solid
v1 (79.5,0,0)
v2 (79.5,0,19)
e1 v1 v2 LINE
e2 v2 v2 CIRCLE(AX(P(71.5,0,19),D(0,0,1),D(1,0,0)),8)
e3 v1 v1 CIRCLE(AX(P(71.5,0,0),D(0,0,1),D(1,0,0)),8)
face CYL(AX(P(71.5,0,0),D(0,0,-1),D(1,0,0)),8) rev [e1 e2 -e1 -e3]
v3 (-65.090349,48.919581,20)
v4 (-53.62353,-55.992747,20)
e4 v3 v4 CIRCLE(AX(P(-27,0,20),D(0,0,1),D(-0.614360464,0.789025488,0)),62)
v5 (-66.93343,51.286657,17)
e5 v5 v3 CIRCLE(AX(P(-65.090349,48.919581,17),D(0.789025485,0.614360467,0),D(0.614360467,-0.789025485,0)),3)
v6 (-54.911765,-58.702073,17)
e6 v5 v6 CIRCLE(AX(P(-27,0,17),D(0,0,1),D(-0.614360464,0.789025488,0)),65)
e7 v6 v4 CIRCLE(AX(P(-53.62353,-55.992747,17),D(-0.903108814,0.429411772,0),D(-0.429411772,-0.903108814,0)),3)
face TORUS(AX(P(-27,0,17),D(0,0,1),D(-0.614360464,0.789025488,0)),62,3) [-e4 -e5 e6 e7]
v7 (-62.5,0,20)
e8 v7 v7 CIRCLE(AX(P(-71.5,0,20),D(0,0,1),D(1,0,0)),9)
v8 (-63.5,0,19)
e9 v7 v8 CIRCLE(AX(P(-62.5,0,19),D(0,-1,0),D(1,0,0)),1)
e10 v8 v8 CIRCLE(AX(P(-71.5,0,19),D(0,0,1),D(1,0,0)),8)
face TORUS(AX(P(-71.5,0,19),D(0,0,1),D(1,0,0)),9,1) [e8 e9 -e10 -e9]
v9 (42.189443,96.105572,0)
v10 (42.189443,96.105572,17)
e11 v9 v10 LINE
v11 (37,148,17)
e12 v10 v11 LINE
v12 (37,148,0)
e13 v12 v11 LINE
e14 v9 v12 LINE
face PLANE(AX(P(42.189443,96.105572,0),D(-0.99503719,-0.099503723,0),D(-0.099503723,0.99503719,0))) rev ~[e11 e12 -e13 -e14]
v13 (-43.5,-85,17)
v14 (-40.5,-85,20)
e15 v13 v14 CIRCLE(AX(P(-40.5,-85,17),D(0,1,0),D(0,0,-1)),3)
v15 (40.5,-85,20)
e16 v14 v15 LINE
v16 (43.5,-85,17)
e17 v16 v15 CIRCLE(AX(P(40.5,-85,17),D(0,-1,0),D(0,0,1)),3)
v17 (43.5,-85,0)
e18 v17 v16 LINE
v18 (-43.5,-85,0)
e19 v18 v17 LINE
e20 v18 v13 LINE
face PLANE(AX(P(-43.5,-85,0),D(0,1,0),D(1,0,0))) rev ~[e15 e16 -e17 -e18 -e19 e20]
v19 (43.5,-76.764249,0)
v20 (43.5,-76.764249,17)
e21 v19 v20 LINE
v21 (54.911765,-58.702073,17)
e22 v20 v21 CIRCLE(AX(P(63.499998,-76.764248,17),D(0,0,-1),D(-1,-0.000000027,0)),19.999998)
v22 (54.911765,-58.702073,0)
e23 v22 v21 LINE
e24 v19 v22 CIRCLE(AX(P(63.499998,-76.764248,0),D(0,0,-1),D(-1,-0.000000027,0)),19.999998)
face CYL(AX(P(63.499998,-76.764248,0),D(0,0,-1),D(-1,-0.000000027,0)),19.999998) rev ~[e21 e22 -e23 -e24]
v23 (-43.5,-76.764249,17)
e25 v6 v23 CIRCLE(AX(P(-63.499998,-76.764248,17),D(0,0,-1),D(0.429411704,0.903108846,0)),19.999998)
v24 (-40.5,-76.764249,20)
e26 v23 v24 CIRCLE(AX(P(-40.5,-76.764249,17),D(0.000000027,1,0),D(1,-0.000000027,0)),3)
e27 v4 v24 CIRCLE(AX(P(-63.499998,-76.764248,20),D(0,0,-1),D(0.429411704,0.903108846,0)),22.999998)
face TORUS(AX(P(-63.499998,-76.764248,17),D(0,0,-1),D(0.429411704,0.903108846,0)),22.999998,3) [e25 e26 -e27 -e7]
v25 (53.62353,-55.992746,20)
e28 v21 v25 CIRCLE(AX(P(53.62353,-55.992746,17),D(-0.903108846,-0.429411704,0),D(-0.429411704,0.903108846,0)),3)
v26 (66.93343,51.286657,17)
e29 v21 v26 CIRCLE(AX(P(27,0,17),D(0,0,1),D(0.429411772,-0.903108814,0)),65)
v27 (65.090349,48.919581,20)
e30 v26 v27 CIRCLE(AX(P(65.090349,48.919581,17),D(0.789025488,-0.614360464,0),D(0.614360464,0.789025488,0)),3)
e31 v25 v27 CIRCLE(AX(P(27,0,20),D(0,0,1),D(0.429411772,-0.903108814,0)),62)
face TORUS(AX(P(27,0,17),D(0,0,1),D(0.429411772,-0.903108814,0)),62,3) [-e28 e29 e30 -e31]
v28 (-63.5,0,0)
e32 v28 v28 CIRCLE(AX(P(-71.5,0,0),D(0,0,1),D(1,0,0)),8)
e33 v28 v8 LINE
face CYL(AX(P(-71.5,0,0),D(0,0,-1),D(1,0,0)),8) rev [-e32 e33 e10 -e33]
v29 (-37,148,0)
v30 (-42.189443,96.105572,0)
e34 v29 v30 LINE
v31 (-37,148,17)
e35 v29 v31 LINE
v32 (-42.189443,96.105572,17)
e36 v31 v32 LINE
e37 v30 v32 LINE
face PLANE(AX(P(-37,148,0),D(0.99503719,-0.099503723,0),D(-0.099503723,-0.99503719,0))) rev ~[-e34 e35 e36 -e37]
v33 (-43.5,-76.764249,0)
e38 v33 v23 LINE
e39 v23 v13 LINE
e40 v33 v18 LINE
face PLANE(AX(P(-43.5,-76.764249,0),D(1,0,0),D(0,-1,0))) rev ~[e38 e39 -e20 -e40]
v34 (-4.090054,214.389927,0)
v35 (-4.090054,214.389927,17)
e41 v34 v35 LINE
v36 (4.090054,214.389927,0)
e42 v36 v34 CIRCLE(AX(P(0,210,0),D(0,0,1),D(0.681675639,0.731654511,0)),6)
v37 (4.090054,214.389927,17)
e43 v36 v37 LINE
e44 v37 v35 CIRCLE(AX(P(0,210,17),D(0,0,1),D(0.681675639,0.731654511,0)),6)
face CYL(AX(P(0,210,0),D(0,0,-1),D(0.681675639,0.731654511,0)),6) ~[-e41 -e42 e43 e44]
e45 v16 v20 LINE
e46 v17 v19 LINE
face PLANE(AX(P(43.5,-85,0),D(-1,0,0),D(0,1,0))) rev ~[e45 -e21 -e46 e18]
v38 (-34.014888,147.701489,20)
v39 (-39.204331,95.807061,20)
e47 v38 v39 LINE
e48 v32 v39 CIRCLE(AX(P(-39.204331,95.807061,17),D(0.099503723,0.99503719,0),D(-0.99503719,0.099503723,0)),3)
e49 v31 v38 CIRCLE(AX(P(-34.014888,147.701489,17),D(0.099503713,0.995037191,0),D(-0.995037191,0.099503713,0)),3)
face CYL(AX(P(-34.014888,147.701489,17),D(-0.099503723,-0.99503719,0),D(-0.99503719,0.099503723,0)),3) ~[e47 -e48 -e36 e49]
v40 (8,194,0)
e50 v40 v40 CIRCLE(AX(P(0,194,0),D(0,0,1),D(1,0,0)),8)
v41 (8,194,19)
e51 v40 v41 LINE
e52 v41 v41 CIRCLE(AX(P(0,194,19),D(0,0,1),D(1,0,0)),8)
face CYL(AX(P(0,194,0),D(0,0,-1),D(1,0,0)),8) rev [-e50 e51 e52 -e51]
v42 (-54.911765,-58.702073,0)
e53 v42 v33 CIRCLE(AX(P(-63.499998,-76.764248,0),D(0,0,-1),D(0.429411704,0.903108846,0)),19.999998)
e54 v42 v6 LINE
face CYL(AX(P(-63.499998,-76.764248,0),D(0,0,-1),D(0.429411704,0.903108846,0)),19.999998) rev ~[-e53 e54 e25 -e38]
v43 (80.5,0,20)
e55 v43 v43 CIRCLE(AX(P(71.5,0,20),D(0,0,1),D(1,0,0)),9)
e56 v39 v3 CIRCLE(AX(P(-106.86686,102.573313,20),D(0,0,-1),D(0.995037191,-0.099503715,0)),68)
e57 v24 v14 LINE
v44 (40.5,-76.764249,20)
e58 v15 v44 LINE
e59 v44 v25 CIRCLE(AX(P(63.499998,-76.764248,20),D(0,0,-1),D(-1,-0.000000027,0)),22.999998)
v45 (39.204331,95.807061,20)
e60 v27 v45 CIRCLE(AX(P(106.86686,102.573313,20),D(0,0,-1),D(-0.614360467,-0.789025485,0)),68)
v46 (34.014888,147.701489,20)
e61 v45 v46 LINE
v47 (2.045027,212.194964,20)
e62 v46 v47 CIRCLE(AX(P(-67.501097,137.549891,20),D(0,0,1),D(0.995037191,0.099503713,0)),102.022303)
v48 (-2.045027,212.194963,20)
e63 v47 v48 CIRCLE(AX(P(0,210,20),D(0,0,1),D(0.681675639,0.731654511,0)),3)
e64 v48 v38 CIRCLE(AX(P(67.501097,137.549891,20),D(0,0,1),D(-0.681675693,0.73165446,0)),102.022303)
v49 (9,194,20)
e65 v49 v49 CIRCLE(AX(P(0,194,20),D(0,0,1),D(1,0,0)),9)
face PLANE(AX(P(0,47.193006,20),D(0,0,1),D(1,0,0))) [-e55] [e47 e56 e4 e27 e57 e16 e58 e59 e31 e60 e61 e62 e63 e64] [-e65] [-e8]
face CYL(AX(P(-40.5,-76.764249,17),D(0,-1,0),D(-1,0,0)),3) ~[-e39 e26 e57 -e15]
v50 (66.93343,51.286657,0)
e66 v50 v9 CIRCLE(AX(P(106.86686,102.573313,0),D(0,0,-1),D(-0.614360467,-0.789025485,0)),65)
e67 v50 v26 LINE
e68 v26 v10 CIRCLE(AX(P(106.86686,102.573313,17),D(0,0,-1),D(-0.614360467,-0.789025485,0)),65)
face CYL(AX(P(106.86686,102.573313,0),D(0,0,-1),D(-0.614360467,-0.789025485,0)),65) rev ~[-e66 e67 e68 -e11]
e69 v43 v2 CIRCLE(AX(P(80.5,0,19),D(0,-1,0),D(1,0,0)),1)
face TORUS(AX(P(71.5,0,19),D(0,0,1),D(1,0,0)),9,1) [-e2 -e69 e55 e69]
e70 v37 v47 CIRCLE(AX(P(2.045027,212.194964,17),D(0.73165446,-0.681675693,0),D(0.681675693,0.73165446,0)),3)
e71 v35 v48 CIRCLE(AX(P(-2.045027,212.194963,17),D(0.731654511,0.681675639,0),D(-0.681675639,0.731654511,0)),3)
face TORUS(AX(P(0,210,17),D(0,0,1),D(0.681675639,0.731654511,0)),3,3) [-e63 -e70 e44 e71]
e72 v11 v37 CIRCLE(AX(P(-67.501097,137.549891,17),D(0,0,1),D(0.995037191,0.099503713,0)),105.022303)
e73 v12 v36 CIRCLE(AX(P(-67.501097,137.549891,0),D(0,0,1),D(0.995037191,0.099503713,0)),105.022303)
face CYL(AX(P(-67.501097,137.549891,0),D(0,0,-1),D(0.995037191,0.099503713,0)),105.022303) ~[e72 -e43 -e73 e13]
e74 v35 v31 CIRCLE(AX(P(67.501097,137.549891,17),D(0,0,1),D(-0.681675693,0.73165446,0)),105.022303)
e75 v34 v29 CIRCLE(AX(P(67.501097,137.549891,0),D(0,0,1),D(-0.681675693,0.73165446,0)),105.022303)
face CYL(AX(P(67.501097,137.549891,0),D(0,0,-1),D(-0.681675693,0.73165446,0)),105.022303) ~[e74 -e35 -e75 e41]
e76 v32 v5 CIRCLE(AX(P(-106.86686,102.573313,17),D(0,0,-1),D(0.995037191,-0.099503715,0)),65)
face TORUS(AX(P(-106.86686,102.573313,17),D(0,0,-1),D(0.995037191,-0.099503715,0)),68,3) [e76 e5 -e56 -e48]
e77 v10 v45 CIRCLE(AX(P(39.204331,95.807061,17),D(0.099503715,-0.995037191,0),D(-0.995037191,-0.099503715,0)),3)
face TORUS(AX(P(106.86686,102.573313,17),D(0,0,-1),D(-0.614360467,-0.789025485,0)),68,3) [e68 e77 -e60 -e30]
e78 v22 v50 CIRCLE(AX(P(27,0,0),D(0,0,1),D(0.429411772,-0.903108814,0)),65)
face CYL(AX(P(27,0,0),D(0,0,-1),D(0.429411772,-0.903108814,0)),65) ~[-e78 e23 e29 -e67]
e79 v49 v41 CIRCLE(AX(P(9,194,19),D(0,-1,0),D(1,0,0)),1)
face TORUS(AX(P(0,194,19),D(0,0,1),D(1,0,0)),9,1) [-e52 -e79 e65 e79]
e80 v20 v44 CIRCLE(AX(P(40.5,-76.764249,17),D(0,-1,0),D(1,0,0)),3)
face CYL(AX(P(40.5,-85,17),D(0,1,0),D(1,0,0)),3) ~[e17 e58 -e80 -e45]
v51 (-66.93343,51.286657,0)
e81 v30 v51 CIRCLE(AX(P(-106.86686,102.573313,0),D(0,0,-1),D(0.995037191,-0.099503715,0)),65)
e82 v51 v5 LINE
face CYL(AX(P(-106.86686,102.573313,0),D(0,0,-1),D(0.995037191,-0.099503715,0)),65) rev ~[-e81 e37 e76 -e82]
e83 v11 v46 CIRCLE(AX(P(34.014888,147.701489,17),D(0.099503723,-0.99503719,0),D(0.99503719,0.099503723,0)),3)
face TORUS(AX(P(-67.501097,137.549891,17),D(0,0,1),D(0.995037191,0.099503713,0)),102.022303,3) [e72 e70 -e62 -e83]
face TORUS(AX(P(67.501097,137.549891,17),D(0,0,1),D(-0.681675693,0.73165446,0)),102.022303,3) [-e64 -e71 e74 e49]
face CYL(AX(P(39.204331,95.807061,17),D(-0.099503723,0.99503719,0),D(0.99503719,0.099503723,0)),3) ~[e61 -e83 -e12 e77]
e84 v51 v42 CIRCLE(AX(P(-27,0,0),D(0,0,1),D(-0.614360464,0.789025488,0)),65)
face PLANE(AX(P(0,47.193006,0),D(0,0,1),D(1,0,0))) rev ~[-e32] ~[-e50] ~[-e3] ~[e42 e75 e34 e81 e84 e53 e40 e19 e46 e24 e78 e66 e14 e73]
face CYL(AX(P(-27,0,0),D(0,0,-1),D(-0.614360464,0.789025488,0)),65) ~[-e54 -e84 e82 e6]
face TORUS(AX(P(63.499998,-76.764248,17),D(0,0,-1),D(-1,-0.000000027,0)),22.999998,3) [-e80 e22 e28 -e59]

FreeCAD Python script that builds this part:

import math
import FreeCAD as App
import Part
import Sketcher

V = App.Vector
Q = App.Units.Quantity


def edges_at(feature, points):
    """Names of the edges that pass closest to the given points."""
    edges = feature.Shape.Edges
    near = lambda p: min(range(len(edges)), key=lambda i: edges[i].distToShape(Part.Vertex(*p))[0])
    return sorted({f"Edge{near(p) + 1}" for p in points})

doc = App.newDocument("Part")
body = doc.addObject("PartDesign::Body", "Body")

sketch1 = body.newObject("Sketcher::SketchObject", "Sketch")
sketch1.AttachmentSupport = (doc.getObject("XY_Plane"), [""])
sketch1.MapMode = "FlatFace"
sketch1.addGeometry(Part.LineSegment(V(-43.5, -85, 0), V(43.5, -85, 0)), False)
sketch1.addGeometry(Part.LineSegment(V(43.5, -85, 0), V(43.5, -76.764249, 0)), False)
sketch1.addGeometry(Part.ArcOfCircle(Part.Circle(V(63.499998, -76.764248, 0), V(0, 0, 1), 19.999998), math.radians(115.430231), math.radians(180.000002)), False)
sketch1.addGeometry(Part.ArcOfCircle(Part.Circle(V(27, 0, 0), V(0, 0, 1), 65), math.radians(-64.569764), math.radians(52.094535)), False)
sketch1.addGeometry(Part.ArcOfCircle(Part.Circle(V(106.86686, 102.573313, 0), V(0, 0, 1), 65), math.radians(-174.289407), math.radians(-127.905465)), False)
sketch1.addGeometry(Part.LineSegment(V(42.189443, 96.105572, 0), V(37, 148, 0)), False)
sketch1.addGeometry(Part.ArcOfCircle(Part.Circle(V(-67.501097, 137.549891, 0), V(0, 0, 1), 105.022303), math.radians(5.710593), math.radians(47.025273)), False)
sketch1.addGeometry(Part.ArcOfCircle(Part.Circle(V(0, 210, 0), V(0, 0, 1), 6), math.radians(47.025277), math.radians(132.974723)), False)
sketch1.addGeometry(Part.ArcOfCircle(Part.Circle(V(67.501097, 137.549891, 0), V(0, 0, 1), 105.022303), math.radians(132.974727), math.radians(174.289407)), False)
sketch1.addGeometry(Part.LineSegment(V(-37, 148, 0), V(-42.189443, 96.105572, 0)), False)
sketch1.addGeometry(Part.ArcOfCircle(Part.Circle(V(-106.86686, 102.573313, 0), V(0, 0, 1), 65), math.radians(-52.094535), math.radians(-5.710593)), False)
sketch1.addGeometry(Part.ArcOfCircle(Part.Circle(V(-27, 0, 0), V(0, 0, 1), 65), math.radians(127.905465), math.radians(244.569764)), False)
sketch1.addGeometry(Part.ArcOfCircle(Part.Circle(V(-63.499998, -76.764248, 0), V(0, 0, 1), 19.999998), math.radians(-0.000002), math.radians(64.569769)), False)
sketch1.addGeometry(Part.LineSegment(V(-43.5, -76.764249, 0), V(-43.5, -85, 0)), False)
sketch1.addGeometry(Part.Circle(V(-71.5, 0, 0), V(0, 0, 1), 8), False)
sketch1.addGeometry(Part.Circle(V(71.5, 0, 0), V(0, 0, 1), 8), False)
sketch1.addGeometry(Part.Circle(V(0, 194, 0), V(0, 0, 1), 8), False)
sketch1.addConstraint(Sketcher.Constraint("Coincident", 0, 2, 1, 1))
sketch1.addConstraint(Sketcher.Constraint("Tangent", 1, 2, 2, 2))
sketch1.addConstraint(Sketcher.Constraint("Tangent", 2, 1, 3, 1))
sketch1.addConstraint(Sketcher.Constraint("Tangent", 3, 2, 4, 2))
sketch1.addConstraint(Sketcher.Constraint("Tangent", 4, 1, 5, 1))
sketch1.addConstraint(Sketcher.Constraint("Tangent", 5, 2, 6, 1))
sketch1.addConstraint(Sketcher.Constraint("Tangent", 6, 2, 7, 1))
sketch1.addConstraint(Sketcher.Constraint("Tangent", 7, 2, 8, 1))
sketch1.addConstraint(Sketcher.Constraint("Tangent", 8, 2, 9, 1))
sketch1.addConstraint(Sketcher.Constraint("Tangent", 9, 2, 10, 2))
sketch1.addConstraint(Sketcher.Constraint("Tangent", 10, 1, 11, 1))
sketch1.addConstraint(Sketcher.Constraint("Tangent", 11, 2, 12, 2))
sketch1.addConstraint(Sketcher.Constraint("Tangent", 12, 1, 13, 1))
sketch1.addConstraint(Sketcher.Constraint("Coincident", 13, 2, 0, 1))
sketch1.addConstraint(Sketcher.Constraint("Horizontal", 0))
sketch1.addConstraint(Sketcher.Constraint("Vertical", 1))
sketch1.addConstraint(Sketcher.Constraint("Vertical", 13))
sketch1.addConstraint(Sketcher.Constraint("Equal", 3, 4))
sketch1.addConstraint(Sketcher.Constraint("Equal", 6, 8))
sketch1.addConstraint(Sketcher.Constraint("Equal", 4, 10))
sketch1.addConstraint(Sketcher.Constraint("Equal", 10, 11))
sketch1.addConstraint(Sketcher.Constraint("Equal", 2, 12))
sketch1.addConstraint(Sketcher.Constraint("Equal", 14, 15))
sketch1.addConstraint(Sketcher.Constraint("Equal", 15, 16))
sketch1.addConstraint(Sketcher.Constraint("Symmetric", 3, 3, 11, 3, -1, 1))
sketch1.addConstraint(Sketcher.Constraint("Symmetric", 14, 3, 15, 3, -1, 1))
sketch1.addConstraint(Sketcher.Constraint("Symmetric", 6, 3, 8, 3, -2))
sketch1.addConstraint(Sketcher.Constraint("Symmetric", 4, 3, 10, 3, -2))
sketch1.addConstraint(Sketcher.Constraint("PointOnObject", 14, 3, -1))
sketch1.addConstraint(Sketcher.Constraint("PointOnObject", 16, 3, -2))
sketch1.addConstraint(Sketcher.Constraint("Horizontal", 2, 3, 12, 3))
sketch1.addConstraint(Sketcher.Constraint("Diameter", 14, Q("16 mm")))
sketch1.addConstraint(Sketcher.Constraint("Radius", 2, Q("19.999998 mm")))
sketch1.addConstraint(Sketcher.Constraint("Radius", 3, Q("65 mm")))
sketch1.addConstraint(Sketcher.Constraint("Radius", 7, Q("6 mm")))
sketch1.addConstraint(Sketcher.Constraint("DistanceX", 0, 1, 0, 2, Q("87 mm")))
sketch1.addConstraint(Sketcher.Constraint("DistanceX", -1, 1, 3, 3, Q("27 mm")))
sketch1.addConstraint(Sketcher.Constraint("DistanceY", -1, 1, 7, 3, Q("210 mm")))
sketch1.addConstraint(Sketcher.Constraint("DistanceY", -1, 1, 16, 3, Q("194 mm")))
sketch1.addConstraint(Sketcher.Constraint("DistanceY", 0, 2, -1, 1, Q("85 mm")))
sketch1.addConstraint(Sketcher.Constraint("DistanceX", -1, 1, 5, 2, Q("37 mm")))
sketch1.addConstraint(Sketcher.Constraint("DistanceY", -1, 1, 5, 2, Q("148 mm")))
sketch1.addConstraint(Sketcher.Constraint("DistanceX", 14, 3, 12, 3, Q("8.000002 mm")))
sketch1.addConstraint(Sketcher.Constraint("Radius", 6, Q("105.022303 mm")))
pad1 = body.newObject("PartDesign::Pad", "Pad")
pad1.Profile = sketch1
pad1.Length = 20
doc.recompute()

fillet = body.newObject("PartDesign::Fillet", "Fillet")
fillet.Base = (pad1, edges_at(pad1, [(39.595, 122.053, 20)]))
fillet.Radius = 3
doc.recompute()

fillet2 = body.newObject("PartDesign::Fillet", "Fillet001")
fillet2.Base = (fillet, edges_at(fillet, [(-8, 194, 20), (-79.5, 0, 20), (63.5, 0, 20)]))
fillet2.Radius = 1

doc.recompute()
